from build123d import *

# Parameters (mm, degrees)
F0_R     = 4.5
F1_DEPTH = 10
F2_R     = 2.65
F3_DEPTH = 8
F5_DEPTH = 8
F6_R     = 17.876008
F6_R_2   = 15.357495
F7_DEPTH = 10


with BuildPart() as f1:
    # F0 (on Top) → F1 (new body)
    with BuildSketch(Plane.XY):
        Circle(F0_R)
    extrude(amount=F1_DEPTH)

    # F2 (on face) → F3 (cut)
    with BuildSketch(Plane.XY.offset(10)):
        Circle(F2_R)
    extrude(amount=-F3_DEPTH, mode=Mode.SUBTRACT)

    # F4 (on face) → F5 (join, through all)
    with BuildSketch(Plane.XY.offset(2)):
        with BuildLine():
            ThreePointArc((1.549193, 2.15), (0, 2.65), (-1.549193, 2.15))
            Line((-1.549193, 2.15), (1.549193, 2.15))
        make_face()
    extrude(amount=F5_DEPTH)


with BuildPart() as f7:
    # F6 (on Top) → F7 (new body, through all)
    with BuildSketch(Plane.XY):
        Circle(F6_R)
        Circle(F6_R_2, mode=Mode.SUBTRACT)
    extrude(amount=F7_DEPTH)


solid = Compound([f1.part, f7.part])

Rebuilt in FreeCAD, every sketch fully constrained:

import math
import FreeCAD as App
import Part
import Sketcher
Q = App.Units.Quantity

doc = App.newDocument("Part")
body = doc.addObject("PartDesign::Body", "Body")

# Sketch on XY plane
sketch1 = doc.addObject("Sketcher::SketchObject", "Sketch")
body.addObject(sketch1)
sketch1.AttachmentSupport = (doc.XY_Plane, [""])
sketch1.MapMode = "FlatFace"
sketch1.addGeometry(Part.Circle(App.Vector(0, 0, 0), App.Vector(0, 0, 1), 4.5), False)
sketch1.addConstraint(Sketcher.Constraint("Coincident", 0, 3, -1, 1))
sketch1.addConstraint(Sketcher.Constraint("Diameter", 0, Q("9 mm")))
pad1 = doc.addObject("PartDesign::Pad", "Pad")
body.addObject(pad1)
pad1.Profile = sketch1
pad1.Length = 10

# Sketch on XY plane
sketch2 = doc.addObject("Sketcher::SketchObject", "Sketch001")
body.addObject(sketch2)
sketch2.AttachmentSupport = (doc.XY_Plane, [""])
sketch2.MapMode = "FlatFace"
sketch2.AttachmentOffset = App.Placement(App.Vector(0, 0, 10), App.Rotation())
sketch2.addGeometry(Part.Circle(App.Vector(0, 0, 0), App.Vector(0, 0, 1), 2.65), False)
sketch2.addConstraint(Sketcher.Constraint("Coincident", 0, 3, -1, 1))
sketch2.addConstraint(Sketcher.Constraint("Diameter", 0, Q("5.3 mm")))
pocket1 = doc.addObject("PartDesign::Pocket", "Pocket")
body.addObject(pocket1)
pocket1.Profile = sketch2
pocket1.Length = 8

# Sketch on XY plane
sketch3 = doc.addObject("Sketcher::SketchObject", "Sketch002")
body.addObject(sketch3)
sketch3.AttachmentSupport = (doc.XY_Plane, [""])
sketch3.MapMode = "FlatFace"
sketch3.AttachmentOffset = App.Placement(App.Vector(0, 0, 2), App.Rotation())
sketch3.addGeometry(Part.ArcOfCircle(Part.Circle(App.Vector(0, 0.000001, 0), App.Vector(0, 0, 1), 2.649999), math.radians(54.225167), math.radians(125.774833)), False)
sketch3.addGeometry(Part.LineSegment(App.Vector(-1.549193, 2.15, 0), App.Vector(1.549193, 2.15, 0)), False)
sketch3.addConstraint(Sketcher.Constraint("Coincident", 0, 1, 1, 2))
sketch3.addConstraint(Sketcher.Constraint("Coincident", 1, 1, 0, 2))
sketch3.addConstraint(Sketcher.Constraint("Horizontal", 1))
sketch3.addConstraint(Sketcher.Constraint("Coincident", 0, 3, -1, 1))
sketch3.addConstraint(Sketcher.Constraint("Radius", 0, Q("2.649999 mm")))
sketch3.addConstraint(Sketcher.Constraint("DistanceY", -1, 1, 0, 1, Q("2.15 mm")))
pad2 = doc.addObject("PartDesign::Pad", "Pad001")
body.addObject(pad2)
pad2.Profile = sketch3
pad2.Length = 8
body2 = doc.addObject("PartDesign::Body", "Body001")

# Sketch on XY plane
sketch4 = doc.addObject("Sketcher::SketchObject", "Sketch003")
body2.addObject(sketch4)
sketch4.AttachmentSupport = (doc.getObject("XY_Plane001"), [""])
sketch4.MapMode = "FlatFace"
sketch4.addGeometry(Part.Circle(App.Vector(0, 0, 0), App.Vector(0, 0, 1), 17.876008), False)
sketch4.addGeometry(Part.Circle(App.Vector(0, 0, 0), App.Vector(0, 0, 1), 15.357495), False)
sketch4.addConstraint(Sketcher.Constraint("Coincident", 0, 3, -1, 1))
sketch4.addConstraint(Sketcher.Constraint("Coincident", 1, 3, -1, 1))
sketch4.addConstraint(Sketcher.Constraint("Diameter", 1, Q("30.71499 mm")))
sketch4.addConstraint(Sketcher.Constraint("Diameter", 0, Q("35.752016 mm")))
pad3 = doc.addObject("PartDesign::Pad", "Pad002")
body2.addObject(pad3)
pad3.Profile = sketch4
pad3.Length = 10

doc.recompute()
